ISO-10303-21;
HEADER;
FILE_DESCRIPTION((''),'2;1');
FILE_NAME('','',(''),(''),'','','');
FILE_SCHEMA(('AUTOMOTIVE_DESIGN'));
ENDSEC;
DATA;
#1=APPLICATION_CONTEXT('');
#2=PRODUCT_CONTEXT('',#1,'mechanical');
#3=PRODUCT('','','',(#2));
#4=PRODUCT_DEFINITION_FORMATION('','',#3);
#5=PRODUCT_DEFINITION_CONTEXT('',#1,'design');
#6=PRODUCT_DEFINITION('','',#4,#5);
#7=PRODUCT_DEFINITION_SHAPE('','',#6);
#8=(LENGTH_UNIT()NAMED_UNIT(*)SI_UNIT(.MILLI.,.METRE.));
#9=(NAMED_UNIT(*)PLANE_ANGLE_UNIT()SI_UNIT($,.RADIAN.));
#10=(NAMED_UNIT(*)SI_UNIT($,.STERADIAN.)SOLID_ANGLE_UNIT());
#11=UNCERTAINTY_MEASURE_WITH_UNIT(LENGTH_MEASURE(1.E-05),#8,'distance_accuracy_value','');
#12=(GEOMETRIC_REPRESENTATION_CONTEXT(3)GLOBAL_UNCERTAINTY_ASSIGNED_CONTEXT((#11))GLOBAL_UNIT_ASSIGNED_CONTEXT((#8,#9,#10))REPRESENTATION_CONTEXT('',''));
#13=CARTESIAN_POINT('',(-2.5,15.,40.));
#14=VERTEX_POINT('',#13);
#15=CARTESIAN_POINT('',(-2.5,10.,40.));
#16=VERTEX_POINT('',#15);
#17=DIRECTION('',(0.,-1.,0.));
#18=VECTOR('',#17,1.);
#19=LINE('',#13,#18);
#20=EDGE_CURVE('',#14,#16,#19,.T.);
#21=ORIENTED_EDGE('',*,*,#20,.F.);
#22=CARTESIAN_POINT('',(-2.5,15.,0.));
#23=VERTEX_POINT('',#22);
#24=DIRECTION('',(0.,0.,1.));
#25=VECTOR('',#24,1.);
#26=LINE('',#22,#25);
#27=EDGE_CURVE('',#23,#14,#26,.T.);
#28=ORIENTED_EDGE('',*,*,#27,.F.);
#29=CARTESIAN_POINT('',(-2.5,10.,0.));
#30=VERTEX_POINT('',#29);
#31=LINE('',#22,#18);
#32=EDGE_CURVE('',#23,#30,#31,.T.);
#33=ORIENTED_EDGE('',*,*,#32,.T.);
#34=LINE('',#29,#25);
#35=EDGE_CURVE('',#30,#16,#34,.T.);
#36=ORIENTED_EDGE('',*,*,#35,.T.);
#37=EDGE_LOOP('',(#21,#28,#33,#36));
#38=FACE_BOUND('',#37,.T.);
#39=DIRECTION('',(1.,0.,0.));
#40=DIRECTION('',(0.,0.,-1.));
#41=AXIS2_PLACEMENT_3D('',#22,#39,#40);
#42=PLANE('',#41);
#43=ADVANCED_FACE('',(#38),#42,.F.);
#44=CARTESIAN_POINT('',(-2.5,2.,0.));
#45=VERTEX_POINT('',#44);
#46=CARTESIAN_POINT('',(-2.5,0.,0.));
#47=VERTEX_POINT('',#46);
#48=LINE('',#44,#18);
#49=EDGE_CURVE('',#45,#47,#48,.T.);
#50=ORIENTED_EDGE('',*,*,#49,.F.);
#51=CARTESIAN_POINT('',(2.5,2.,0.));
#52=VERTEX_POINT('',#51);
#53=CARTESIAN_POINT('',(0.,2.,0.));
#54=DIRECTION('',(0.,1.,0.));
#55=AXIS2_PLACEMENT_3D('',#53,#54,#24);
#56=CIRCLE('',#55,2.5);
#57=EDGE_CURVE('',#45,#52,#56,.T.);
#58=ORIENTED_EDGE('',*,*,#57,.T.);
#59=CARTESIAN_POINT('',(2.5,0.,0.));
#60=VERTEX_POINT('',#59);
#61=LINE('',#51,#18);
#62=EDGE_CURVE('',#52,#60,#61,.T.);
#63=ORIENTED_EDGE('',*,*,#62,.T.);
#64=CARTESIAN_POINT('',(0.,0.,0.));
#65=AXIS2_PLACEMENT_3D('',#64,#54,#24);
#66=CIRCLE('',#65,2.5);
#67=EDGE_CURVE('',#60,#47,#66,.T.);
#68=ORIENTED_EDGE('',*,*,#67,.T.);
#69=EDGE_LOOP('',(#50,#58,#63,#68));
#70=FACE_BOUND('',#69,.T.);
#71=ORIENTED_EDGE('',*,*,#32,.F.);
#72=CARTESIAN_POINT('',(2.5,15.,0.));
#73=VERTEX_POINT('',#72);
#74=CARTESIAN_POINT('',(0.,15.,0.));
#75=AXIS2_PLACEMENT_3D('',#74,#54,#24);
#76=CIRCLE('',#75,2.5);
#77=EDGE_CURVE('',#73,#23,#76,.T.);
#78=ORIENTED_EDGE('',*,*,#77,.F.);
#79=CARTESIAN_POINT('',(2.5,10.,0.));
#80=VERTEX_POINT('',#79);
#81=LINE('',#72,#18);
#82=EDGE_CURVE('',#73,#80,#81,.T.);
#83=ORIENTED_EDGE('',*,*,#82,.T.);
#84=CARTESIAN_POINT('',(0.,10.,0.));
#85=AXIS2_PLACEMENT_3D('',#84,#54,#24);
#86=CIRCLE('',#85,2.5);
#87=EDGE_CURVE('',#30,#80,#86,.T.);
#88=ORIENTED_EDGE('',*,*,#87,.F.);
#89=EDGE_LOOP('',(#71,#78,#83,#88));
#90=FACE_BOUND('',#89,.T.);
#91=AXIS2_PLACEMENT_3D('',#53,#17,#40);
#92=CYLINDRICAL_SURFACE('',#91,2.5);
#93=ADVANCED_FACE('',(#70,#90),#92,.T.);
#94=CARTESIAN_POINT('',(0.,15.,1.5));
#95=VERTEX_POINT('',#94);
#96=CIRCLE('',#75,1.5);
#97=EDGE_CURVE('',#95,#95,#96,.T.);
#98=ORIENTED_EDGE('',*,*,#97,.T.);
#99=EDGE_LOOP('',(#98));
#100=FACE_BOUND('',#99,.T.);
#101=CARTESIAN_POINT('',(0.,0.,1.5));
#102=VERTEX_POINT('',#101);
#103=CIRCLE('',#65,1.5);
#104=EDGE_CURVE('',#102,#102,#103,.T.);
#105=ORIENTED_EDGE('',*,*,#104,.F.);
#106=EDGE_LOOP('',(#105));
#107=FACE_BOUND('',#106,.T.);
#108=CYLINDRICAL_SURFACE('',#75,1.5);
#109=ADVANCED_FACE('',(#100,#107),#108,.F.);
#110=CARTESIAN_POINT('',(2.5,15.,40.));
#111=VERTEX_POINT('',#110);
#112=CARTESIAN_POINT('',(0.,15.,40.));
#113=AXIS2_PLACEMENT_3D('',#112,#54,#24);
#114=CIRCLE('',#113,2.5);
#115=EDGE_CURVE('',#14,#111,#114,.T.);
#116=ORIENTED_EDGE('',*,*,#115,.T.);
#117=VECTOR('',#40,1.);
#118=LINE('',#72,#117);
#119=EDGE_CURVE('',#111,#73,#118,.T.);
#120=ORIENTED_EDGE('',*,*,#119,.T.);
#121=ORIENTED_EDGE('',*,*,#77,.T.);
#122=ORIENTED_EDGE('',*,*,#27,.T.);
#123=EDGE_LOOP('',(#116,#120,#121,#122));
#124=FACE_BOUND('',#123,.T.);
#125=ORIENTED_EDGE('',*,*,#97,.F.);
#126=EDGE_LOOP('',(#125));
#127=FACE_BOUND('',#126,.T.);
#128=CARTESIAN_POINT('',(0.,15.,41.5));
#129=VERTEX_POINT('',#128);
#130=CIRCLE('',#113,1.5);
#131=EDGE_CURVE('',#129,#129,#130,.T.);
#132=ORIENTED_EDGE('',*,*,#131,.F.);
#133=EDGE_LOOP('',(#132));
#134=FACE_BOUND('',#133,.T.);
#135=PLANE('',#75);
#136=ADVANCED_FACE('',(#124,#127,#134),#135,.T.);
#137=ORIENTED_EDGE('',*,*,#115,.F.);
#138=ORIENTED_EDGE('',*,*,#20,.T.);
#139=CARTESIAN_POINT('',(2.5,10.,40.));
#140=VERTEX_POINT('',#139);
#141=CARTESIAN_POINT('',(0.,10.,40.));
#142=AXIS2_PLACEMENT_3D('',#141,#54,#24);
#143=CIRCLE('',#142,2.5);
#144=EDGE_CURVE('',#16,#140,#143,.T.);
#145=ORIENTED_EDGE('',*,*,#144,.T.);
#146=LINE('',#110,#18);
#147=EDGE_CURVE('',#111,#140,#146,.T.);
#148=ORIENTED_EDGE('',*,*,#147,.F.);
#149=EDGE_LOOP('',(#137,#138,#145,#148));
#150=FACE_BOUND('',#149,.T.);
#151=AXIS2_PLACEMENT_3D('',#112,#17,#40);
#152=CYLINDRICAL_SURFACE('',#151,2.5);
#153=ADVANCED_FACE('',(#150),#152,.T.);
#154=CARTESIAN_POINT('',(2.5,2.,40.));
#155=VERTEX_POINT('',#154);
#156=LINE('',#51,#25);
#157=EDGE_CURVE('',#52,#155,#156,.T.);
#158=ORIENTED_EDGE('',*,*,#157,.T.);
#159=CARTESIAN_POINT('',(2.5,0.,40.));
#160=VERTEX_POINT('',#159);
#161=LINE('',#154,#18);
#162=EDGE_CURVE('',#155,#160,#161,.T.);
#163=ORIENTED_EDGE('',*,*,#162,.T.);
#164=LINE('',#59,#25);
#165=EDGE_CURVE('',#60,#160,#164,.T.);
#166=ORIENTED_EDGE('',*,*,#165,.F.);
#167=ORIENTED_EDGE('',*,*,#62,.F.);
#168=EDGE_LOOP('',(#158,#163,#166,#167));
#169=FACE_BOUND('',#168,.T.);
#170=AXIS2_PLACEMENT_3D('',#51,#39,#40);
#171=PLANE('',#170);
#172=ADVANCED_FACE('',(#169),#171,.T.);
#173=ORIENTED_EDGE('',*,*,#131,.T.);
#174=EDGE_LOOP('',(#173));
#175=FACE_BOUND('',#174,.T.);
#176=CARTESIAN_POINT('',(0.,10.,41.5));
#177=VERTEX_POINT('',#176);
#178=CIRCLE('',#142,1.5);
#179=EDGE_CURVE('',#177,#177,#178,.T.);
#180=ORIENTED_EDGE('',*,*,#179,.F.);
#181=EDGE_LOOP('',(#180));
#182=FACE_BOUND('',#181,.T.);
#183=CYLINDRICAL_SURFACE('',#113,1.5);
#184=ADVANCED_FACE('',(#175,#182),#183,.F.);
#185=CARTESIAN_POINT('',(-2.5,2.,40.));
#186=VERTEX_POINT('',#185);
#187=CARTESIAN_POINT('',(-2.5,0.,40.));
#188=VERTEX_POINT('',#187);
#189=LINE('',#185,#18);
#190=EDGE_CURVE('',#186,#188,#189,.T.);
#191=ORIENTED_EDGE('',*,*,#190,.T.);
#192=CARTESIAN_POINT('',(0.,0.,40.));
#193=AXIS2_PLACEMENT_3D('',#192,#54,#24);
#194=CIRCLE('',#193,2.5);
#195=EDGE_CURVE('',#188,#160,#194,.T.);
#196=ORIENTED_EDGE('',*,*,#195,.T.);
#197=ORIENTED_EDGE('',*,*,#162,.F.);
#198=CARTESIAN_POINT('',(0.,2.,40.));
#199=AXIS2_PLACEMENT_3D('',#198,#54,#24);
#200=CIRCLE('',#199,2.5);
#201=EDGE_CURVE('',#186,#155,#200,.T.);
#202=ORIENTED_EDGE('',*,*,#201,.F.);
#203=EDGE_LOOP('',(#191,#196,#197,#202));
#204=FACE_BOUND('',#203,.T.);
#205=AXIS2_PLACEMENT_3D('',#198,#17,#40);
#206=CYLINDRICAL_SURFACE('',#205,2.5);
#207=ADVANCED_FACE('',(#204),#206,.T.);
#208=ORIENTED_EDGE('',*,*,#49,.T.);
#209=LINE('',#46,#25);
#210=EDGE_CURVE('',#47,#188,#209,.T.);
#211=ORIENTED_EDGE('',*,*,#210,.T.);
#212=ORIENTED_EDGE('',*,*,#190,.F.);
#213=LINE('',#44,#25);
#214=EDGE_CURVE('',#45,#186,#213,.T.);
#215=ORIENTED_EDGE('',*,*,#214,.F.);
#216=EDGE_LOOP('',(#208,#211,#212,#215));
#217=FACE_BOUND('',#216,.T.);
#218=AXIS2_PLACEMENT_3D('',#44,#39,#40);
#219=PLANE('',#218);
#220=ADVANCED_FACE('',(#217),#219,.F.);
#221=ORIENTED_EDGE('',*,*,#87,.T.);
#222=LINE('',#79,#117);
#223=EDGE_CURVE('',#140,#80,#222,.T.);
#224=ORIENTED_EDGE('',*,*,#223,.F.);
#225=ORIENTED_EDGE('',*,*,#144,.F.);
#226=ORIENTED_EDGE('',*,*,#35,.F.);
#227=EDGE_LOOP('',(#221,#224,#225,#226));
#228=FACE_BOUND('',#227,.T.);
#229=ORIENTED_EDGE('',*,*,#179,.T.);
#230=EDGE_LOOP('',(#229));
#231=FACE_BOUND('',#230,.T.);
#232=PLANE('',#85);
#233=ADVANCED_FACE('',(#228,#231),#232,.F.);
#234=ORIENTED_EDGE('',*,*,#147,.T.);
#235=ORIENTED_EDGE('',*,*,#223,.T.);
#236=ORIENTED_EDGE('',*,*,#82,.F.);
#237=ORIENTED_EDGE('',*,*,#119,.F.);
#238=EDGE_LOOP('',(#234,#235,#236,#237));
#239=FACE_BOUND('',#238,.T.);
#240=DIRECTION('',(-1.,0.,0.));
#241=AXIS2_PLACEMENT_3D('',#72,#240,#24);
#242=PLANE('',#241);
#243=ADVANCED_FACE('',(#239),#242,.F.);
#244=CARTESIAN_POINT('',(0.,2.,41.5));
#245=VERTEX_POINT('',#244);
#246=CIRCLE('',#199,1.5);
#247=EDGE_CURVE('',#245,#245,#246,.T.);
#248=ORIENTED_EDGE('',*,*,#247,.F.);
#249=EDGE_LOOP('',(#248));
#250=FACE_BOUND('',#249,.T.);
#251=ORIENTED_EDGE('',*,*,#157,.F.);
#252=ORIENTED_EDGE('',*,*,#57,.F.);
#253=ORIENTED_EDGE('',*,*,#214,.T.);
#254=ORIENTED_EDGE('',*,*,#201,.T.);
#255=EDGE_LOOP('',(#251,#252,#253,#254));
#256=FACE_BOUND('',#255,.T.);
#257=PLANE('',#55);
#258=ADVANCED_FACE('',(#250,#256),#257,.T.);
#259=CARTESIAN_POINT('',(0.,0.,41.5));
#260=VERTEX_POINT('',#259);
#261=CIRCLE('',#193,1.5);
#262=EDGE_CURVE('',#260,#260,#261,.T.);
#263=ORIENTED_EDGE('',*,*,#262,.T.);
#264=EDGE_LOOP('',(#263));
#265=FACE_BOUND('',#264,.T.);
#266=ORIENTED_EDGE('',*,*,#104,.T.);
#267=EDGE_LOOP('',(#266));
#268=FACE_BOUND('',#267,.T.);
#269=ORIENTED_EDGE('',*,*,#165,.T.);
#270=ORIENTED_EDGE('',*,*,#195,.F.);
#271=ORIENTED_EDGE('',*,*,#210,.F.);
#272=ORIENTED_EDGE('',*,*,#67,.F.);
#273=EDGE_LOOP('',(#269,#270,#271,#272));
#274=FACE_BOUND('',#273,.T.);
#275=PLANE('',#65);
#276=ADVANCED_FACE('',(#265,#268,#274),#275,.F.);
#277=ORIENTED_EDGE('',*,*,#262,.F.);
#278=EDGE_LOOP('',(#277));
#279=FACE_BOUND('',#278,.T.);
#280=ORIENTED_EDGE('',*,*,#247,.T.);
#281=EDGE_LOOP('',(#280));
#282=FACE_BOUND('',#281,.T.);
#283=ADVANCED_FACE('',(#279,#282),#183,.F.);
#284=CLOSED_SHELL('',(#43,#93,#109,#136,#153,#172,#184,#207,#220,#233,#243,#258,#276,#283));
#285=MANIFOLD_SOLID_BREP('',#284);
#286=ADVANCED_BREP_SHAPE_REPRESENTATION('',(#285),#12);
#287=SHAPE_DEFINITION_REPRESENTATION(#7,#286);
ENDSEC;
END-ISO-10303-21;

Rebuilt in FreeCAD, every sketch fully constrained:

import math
import FreeCAD as App
import Part
import Sketcher

doc = App.newDocument("Part")
body = doc.addObject("PartDesign::Body", "Body")

# Sketch on XZ plane
sketch1 = body.newObject("Sketcher::SketchObject", "Sketch")
sketch1.AttachmentSupport = (doc.getObject("XZ_Plane"), [""])
sketch1.MapMode = "FlatFace"
sketch1.addGeometry([
    Part.LineSegment(App.Vector(2.5, 40, 0), App.Vector(2.5, 0, 0)),
    Part.ArcOfCircle(Part.Circle(App.Vector(0, 0, 0), App.Vector(0, 0, 1), 2.5), math.radians(180), math.radians(360)),
    Part.LineSegment(App.Vector(-2.5, 0, 0), App.Vector(-2.5, 40, 0)),
    Part.ArcOfCircle(Part.Circle(App.Vector(0, 40, 0), App.Vector(0, 0, 1), 2.5), math.radians(0), math.radians(180)),
], False)
sketch1.addConstraint([
    Sketcher.Constraint("Tangent", 0, 2, 1, 2),
    Sketcher.Constraint("Tangent", 1, 1, 2, 1),
    Sketcher.Constraint("Tangent", 2, 2, 3, 2),
    Sketcher.Constraint("Tangent", 3, 1, 0, 1),
    Sketcher.Constraint("Vertical", 0),
    Sketcher.Constraint("Vertical", 2),
    Sketcher.Constraint("Coincident", 1, 3, -1, 1),
    Sketcher.Constraint("Radius", 1, 2.5),
    Sketcher.Constraint("DistanceY", 0, 2, 0, 1, 40.0),
])
pad1 = body.newObject("PartDesign::Pad", "Pad")
pad1.Profile = sketch1
pad1.Length = 2
pad1.Reversed = True

# Sketch on XZ plane
sketch2 = body.newObject("Sketcher::SketchObject", "Sketch001")
sketch2.AttachmentSupport = (doc.getObject("XZ_Plane"), [""])
sketch2.MapMode = "FlatFace"
sketch2.AttachmentOffset = App.Placement(App.Vector(0, 0, -2), App.Rotation())
sketch2.addGeometry(Part.Circle(App.Vector(0, 0, 0), App.Vector(0, 0, 1), 2.5), False)
sketch2.addConstraint([
    Sketcher.Constraint("Coincident", 0, 3, -1, 1),
    Sketcher.Constraint("Diameter", 0, 5.0),
])
pad2 = body.newObject("PartDesign::Pad", "Pad001")
pad2.Profile = sketch2
pad2.Length = 12
pad2.Reversed = True

# Sketch on XZ plane
sketch3 = body.newObject("Sketcher::SketchObject", "Sketch002")
sketch3.AttachmentSupport = (doc.getObject("XZ_Plane"), [""])
sketch3.MapMode = "FlatFace"
sketch3.AttachmentOffset = App.Placement(App.Vector(0, 0, -10), App.Rotation())
sketch3.addGeometry([
    Part.LineSegment(App.Vector(2.5, 40, 0), App.Vector(2.5, 0, 0)),
    Part.ArcOfCircle(Part.Circle(App.Vector(0, 0, 0), App.Vector(0, 0, 1), 2.5), math.radians(180), math.radians(360)),
    Part.LineSegment(App.Vector(-2.5, 0, 0), App.Vector(-2.5, 40, 0)),
    Part.ArcOfCircle(Part.Circle(App.Vector(0, 40, 0), App.Vector(0, 0, 1), 2.5), math.radians(0), math.radians(180)),
], False)
sketch3.addConstraint([
    Sketcher.Constraint("Tangent", 0, 2, 1, 2),
    Sketcher.Constraint("Tangent", 1, 1, 2, 1),
    Sketcher.Constraint("Tangent", 2, 2, 3, 2),
    Sketcher.Constraint("Tangent", 3, 1, 0, 1),
    Sketcher.Constraint("Vertical", 0),
    Sketcher.Constraint("Vertical", 2),
    Sketcher.Constraint("Coincident", 1, 3, -1, 1),
    Sketcher.Constraint("Radius", 1, 2.5),
    Sketcher.Constraint("DistanceY", 0, 2, 0, 1, 40.0),
])
pad3 = body.newObject("PartDesign::Pad", "Pad002")
pad3.Profile = sketch3
pad3.Length = 5
pad3.Reversed = True

# Sketch on XZ plane
sketch4 = body.newObject("Sketcher::SketchObject", "Sketch003")
sketch4.AttachmentSupport = (doc.getObject("XZ_Plane"), [""])
sketch4.MapMode = "FlatFace"
sketch4.AttachmentOffset = App.Placement(App.Vector(0, 0, -15), App.Rotation())
sketch4.addGeometry([
    Part.Circle(App.Vector(0, 0, 0), App.Vector(0, 0, 1), 1.5),
    Part.Circle(App.Vector(0, 40, 0), App.Vector(0, 0, 1), 1.5),
], False)
sketch4.addConstraint([
    Sketcher.Constraint("Coincident", 0, 3, -1, 1),
    Sketcher.Constraint("Equal", 0, 1),
    Sketcher.Constraint("PointOnObject", 1, 3, -2),
    Sketcher.Constraint("Diameter", 0, 3.0),
    Sketcher.Constraint("DistanceY", -1, 1, 1, 3, 40.0),
])
doc.recompute()
hole = body.newObject("PartDesign::Hole", "Hole")
hole.Profile = sketch4
hole.ThreadType = "None"
hole.Diameter = 3
hole.DepthType = "ThroughAll"
hole.Reversed = True

doc.recompute()
